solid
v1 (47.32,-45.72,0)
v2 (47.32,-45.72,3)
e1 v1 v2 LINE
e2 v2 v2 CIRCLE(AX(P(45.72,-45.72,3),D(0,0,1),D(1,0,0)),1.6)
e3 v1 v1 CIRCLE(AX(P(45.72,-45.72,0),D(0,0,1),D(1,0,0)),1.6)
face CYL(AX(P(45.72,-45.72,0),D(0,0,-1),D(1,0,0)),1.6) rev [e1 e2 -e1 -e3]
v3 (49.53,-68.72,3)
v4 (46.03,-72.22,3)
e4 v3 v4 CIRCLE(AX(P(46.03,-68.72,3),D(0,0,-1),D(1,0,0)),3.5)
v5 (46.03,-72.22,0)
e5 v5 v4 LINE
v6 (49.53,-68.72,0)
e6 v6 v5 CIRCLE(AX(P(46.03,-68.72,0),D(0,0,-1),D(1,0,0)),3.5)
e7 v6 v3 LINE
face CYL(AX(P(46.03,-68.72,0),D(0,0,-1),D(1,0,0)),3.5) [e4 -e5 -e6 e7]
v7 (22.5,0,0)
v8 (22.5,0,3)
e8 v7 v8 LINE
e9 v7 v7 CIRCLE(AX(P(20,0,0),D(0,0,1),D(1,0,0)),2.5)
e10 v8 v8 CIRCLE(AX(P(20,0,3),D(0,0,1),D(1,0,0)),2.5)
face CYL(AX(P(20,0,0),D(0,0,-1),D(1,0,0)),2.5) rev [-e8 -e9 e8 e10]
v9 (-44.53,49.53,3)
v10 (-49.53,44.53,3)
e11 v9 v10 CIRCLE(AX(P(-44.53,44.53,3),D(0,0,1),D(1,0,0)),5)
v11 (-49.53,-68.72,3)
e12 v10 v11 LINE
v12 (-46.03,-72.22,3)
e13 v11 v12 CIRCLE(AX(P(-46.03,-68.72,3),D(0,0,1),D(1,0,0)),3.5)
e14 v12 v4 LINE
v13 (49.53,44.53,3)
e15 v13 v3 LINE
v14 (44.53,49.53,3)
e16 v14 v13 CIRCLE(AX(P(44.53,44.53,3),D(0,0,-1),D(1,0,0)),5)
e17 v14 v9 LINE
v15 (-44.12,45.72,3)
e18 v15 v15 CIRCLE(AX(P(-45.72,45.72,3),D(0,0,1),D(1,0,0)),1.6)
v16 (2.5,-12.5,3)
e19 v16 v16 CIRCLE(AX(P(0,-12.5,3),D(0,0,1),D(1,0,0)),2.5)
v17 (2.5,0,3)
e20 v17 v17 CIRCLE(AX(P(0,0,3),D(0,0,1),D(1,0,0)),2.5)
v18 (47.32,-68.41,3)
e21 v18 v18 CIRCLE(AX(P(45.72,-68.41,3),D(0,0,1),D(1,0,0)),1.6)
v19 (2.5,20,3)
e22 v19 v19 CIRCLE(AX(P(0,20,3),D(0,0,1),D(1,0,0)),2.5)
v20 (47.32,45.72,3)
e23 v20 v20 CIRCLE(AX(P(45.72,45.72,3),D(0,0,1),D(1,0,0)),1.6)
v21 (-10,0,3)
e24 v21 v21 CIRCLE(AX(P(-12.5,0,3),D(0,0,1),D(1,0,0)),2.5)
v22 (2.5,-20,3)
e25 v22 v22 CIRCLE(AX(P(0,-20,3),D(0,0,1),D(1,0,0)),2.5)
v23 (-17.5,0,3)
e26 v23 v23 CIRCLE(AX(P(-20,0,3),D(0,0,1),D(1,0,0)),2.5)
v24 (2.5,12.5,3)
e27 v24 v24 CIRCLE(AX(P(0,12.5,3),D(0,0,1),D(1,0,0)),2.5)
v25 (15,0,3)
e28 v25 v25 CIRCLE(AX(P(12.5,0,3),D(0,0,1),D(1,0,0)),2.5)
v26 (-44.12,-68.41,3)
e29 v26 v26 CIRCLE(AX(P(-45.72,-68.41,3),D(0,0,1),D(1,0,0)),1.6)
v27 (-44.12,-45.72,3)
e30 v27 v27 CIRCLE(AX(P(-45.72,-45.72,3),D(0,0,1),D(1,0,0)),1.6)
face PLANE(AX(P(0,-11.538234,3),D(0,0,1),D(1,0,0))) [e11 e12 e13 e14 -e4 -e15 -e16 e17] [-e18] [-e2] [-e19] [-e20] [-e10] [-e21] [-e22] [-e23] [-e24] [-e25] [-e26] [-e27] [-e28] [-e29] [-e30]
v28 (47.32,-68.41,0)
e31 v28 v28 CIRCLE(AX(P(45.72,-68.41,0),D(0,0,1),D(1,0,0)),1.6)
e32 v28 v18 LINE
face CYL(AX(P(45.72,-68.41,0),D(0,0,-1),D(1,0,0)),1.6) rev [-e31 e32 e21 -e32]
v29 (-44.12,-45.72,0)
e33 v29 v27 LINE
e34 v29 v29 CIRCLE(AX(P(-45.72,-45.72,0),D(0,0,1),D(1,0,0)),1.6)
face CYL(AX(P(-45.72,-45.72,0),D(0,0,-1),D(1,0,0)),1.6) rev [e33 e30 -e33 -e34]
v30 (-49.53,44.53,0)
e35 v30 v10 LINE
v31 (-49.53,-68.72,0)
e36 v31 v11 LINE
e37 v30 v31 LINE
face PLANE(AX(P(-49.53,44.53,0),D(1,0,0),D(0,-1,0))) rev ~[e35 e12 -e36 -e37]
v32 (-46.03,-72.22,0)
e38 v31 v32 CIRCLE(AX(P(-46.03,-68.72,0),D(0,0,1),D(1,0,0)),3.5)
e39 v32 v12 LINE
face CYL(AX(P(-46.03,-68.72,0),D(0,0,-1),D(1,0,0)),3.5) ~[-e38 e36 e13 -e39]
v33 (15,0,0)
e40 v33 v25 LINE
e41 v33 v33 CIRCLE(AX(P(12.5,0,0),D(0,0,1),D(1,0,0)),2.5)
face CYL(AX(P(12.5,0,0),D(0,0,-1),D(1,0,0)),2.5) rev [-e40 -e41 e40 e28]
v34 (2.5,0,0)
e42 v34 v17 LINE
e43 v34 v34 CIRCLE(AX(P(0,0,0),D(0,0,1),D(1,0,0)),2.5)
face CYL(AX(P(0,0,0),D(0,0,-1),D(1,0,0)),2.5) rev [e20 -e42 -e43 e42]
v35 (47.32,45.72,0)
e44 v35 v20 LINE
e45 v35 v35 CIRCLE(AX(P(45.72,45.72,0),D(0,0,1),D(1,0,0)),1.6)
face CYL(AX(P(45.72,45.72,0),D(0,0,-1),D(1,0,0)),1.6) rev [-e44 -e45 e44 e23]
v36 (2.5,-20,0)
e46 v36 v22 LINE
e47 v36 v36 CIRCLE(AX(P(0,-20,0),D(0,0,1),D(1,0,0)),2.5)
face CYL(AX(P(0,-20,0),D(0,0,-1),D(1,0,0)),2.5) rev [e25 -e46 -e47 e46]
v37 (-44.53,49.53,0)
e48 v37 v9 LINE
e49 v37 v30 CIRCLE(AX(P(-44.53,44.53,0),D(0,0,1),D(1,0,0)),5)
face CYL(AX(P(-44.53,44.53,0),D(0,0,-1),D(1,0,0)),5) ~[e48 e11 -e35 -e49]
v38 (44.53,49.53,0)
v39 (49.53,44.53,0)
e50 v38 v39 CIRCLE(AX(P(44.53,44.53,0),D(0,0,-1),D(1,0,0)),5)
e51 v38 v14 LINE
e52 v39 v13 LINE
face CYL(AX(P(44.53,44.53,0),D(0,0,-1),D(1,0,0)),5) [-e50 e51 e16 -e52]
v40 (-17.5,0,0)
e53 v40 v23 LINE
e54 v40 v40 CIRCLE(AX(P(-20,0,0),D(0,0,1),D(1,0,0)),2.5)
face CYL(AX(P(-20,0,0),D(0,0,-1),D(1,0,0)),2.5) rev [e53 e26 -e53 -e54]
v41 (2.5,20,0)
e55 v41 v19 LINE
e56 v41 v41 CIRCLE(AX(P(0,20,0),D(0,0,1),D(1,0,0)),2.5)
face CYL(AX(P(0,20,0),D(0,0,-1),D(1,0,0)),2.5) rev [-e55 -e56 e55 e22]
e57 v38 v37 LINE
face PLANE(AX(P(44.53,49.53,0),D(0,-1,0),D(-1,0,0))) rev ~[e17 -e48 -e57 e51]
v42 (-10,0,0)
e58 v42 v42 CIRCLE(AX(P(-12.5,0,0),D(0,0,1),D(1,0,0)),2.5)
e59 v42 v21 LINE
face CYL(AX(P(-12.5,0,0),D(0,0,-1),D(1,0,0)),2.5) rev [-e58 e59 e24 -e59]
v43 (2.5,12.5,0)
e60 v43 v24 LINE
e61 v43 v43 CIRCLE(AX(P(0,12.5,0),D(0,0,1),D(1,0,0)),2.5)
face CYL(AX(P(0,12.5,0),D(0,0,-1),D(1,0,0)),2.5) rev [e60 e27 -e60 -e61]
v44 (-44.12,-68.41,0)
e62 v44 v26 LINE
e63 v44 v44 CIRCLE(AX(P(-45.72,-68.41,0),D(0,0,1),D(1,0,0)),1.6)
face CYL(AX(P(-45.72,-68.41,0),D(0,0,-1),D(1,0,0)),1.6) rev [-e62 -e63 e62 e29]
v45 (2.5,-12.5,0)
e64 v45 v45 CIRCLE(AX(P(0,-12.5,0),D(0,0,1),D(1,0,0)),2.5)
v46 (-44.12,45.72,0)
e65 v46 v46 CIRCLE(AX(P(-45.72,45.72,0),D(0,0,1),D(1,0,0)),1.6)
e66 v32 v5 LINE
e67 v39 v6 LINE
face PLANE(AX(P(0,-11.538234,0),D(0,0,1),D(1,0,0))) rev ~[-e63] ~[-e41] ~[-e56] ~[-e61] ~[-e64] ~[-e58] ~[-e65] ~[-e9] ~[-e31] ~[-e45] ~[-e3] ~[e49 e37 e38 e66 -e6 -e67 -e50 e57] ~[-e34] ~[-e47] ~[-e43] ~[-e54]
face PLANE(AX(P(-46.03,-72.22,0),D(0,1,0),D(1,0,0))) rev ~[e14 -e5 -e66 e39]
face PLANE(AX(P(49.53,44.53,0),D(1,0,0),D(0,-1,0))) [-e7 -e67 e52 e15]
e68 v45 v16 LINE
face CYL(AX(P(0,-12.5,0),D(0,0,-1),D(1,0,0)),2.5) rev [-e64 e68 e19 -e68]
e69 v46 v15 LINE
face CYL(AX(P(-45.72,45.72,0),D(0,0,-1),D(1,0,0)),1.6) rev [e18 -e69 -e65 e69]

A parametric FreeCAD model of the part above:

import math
import FreeCAD as App
import Part
import Sketcher

V = App.Vector
Q = App.Units.Quantity

doc = App.newDocument("Part")
body = doc.addObject("PartDesign::Body", "Body")

# Sketch on XY plane
sketch1 = body.newObject("Sketcher::SketchObject", "Sketch")
sketch1.AttachmentSupport = (doc.getObject("XY_Plane"), [""])
sketch1.MapMode = "FlatFace"
sketch1.addGeometry([
    Part.ArcOfCircle(Part.Circle(V(-44.53, 44.53, 0), V(0, 0, 1), 5), math.radians(90), math.radians(180)),  # 0
    Part.LineSegment(V(-49.53, 44.53, 0), V(-49.53, -68.72, 0)),  # 1
    Part.ArcOfCircle(Part.Circle(V(-46.03, -68.72, 0), V(0, 0, 1), 3.5), math.radians(180), math.radians(270)),  # 2
    Part.LineSegment(V(-46.03, -72.22, 0), V(46.03, -72.22, 0)),  # 3
    Part.ArcOfCircle(Part.Circle(V(46.03, -68.72, 0), V(0, 0, 1), 3.5), math.radians(-90), math.radians(0)),  # 4
    Part.LineSegment(V(49.53, -68.72, 0), V(49.53, 44.53, 0)),  # 5
    Part.ArcOfCircle(Part.Circle(V(44.53, 44.53, 0), V(0, 0, 1), 5), math.radians(0), math.radians(90)),  # 6
    Part.LineSegment(V(44.53, 49.53, 0), V(-44.53, 49.53, 0)),  # 7
    Part.Circle(V(-45.72, -68.41, 0), V(0, 0, 1), 1.6),  # 8
    Part.Circle(V(-45.72, -45.72, 0), V(0, 0, 1), 1.6),  # 9
    Part.Circle(V(0, -20, 0), V(0, 0, 1), 2.5),  # 10
    Part.Circle(V(0, -12.5, 0), V(0, 0, 1), 2.5),  # 11
    Part.Circle(V(45.72, -68.41, 0), V(0, 0, 1), 1.6),  # 12
    Part.Circle(V(45.72, -45.72, 0), V(0, 0, 1), 1.6),  # 13
    Part.Circle(V(-20, 0, 0), V(0, 0, 1), 2.5),  # 14
    Part.Circle(V(-12.5, 0, 0), V(0, 0, 1), 2.5),  # 15
    Part.Circle(V(0, 0, 0), V(0, 0, 1), 2.5),  # 16
    Part.Circle(V(0, 12.5, 0), V(0, 0, 1), 2.5),  # 17
    Part.Circle(V(-45.72, 45.72, 0), V(0, 0, 1), 1.6),  # 18
    Part.Circle(V(0, 20, 0), V(0, 0, 1), 2.5),  # 19
    Part.Circle(V(12.5, 0, 0), V(0, 0, 1), 2.5),  # 20
    Part.Circle(V(20, 0, 0), V(0, 0, 1), 2.5),  # 21
    Part.Circle(V(45.72, 45.72, 0), V(0, 0, 1), 1.6),  # 22
], False)
sketch1.addConstraint([
    Sketcher.Constraint("Tangent", 0, 2, 1, 1),
    Sketcher.Constraint("Tangent", 1, 2, 2, 1),
    Sketcher.Constraint("Tangent", 2, 2, 3, 1),
    Sketcher.Constraint("Tangent", 3, 2, 4, 1),
    Sketcher.Constraint("Tangent", 4, 2, 5, 1),
    Sketcher.Constraint("Tangent", 5, 2, 6, 1),
    Sketcher.Constraint("Tangent", 6, 2, 7, 1),
    Sketcher.Constraint("Tangent", 7, 2, 0, 1),
    Sketcher.Constraint("Vertical", 1),
    Sketcher.Constraint("Horizontal", 3),
    Sketcher.Constraint("Vertical", 5),
    Sketcher.Constraint("Horizontal", 7),
    Sketcher.Constraint("Coincident", 16, 3, -1, 1),
    Sketcher.Constraint("Equal", 2, 4),
    Sketcher.Constraint("Equal", 0, 6),
    Sketcher.Constraint("Equal", 8, 9),
    Sketcher.Constraint("Equal", 10, 11),
    Sketcher.Constraint("Equal", 9, 12),
    Sketcher.Constraint("Equal", 12, 13),
    Sketcher.Constraint("Equal", 11, 14),
    Sketcher.Constraint("Equal", 14, 15),
    Sketcher.Constraint("Equal", 15, 16),
    Sketcher.Constraint("Equal", 16, 17),
    Sketcher.Constraint("Equal", 13, 18),
    Sketcher.Constraint("Equal", 17, 19),
    Sketcher.Constraint("Equal", 19, 20),
    Sketcher.Constraint("Equal", 20, 21),
    Sketcher.Constraint("Equal", 18, 22),
    Sketcher.Constraint("Symmetric", 11, 3, 17, 3, -1, 1),
    Sketcher.Constraint("Symmetric", 13, 3, 18, 3, -1, 1),
    Sketcher.Constraint("Symmetric", 10, 3, 19, 3, -1, 1),
    Sketcher.Constraint("Symmetric", 15, 3, 20, 3, -1, 1),
    Sketcher.Constraint("Symmetric", 14, 3, 21, 3, -1, 1),
    Sketcher.Constraint("Symmetric", 9, 3, 22, 3, -1, 1),
    Sketcher.Constraint("Symmetric", 8, 3, 12, 3, -2),
    Sketcher.Constraint("Symmetric", 9, 3, 13, 3, -2),
    Sketcher.Constraint("PointOnObject", 10, 3, -2),
    Sketcher.Constraint("PointOnObject", 11, 3, -2),
    Sketcher.Constraint("PointOnObject", 14, 3, -1),
    Sketcher.Constraint("PointOnObject", 15, 3, -1),
    Sketcher.Constraint("Vertical", 8, 3, 9, 3),
    Sketcher.Constraint("Diameter", 10, Q("5 mm")),
    Sketcher.Constraint("Radius", 0, Q("5 mm")),
    Sketcher.Constraint("Diameter", 8, Q("3.2 mm")),
    Sketcher.Constraint("Radius", 2, Q("3.5 mm")),
    Sketcher.Constraint("DistanceY", 10, 3, -1, 1, Q("20 mm")),
    Sketcher.Constraint("DistanceX", 14, 3, -1, 1, Q("20 mm")),
    Sketcher.Constraint("DistanceY", 2, 3, 9, 3, Q("23 mm")),
    Sketcher.Constraint("DistanceY", 11, 3, 17, 3, Q("25 mm")),
    Sketcher.Constraint("DistanceX", 3, 1, 3, 2, Q("92.06 mm")),
    Sketcher.Constraint("DistanceY", 1, 2, 1, 1, Q("113.25 mm")),
    Sketcher.Constraint("DistanceX", 15, 3, -1, 1, Q("12.5 mm")),
    Sketcher.Constraint("DistanceX", 0, 3, -1, 1, Q("44.53 mm")),
    Sketcher.Constraint("DistanceY", -1, 1, 0, 3, Q("44.53 mm")),
    Sketcher.Constraint("DistanceX", 8, 3, -1, 1, Q("45.72 mm")),
    Sketcher.Constraint("DistanceY", 8, 3, -1, 1, Q("68.41 mm")),
])
pad1 = body.newObject("PartDesign::Pad", "Pad")
pad1.Profile = sketch1
pad1.Length = 3

doc.recompute()
